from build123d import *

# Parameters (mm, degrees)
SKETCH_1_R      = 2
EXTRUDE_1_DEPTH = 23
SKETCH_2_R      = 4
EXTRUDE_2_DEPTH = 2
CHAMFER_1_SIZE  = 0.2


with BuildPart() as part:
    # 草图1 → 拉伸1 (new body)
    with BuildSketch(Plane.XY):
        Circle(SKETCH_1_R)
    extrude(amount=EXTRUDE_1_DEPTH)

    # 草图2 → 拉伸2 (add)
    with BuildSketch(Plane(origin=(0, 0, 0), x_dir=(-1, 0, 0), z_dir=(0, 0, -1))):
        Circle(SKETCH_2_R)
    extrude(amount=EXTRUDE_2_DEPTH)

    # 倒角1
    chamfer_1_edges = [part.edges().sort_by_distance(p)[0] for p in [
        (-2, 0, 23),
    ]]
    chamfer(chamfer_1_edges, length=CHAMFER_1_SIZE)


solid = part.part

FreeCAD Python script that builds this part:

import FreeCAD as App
import Part
import Sketcher

V = App.Vector


def edges_at(feature, points):
    """Names of the edges that pass closest to the given points."""
    edges = feature.Shape.Edges
    near = lambda p: min(range(len(edges)), key=lambda i: edges[i].distToShape(Part.Vertex(*p))[0])
    return sorted({f"Edge{near(p) + 1}" for p in points})

doc = App.newDocument("Part")
body = doc.addObject("PartDesign::Body", "Body")

sketch1 = body.newObject("Sketcher::SketchObject", "Sketch")
sketch1.AttachmentSupport = (doc.getObject("XY_Plane"), [""])
sketch1.MapMode = "FlatFace"
sketch1.addGeometry(Part.Circle(V(0, 0, 0), V(0, 0, 1), 2), False)
sketch1.addConstraint([
    Sketcher.Constraint("Coincident", 0, 3, -1, 1),
    Sketcher.Constraint("Diameter", 0, 4.0),
])
pad1 = body.newObject("PartDesign::Pad", "Pad")
pad1.Profile = sketch1
pad1.Length = 23

sketch2 = body.newObject("Sketcher::SketchObject", "Sketch001")
sketch2.AttachmentSupport = (doc.getObject("XY_Plane"), [""])
sketch2.MapMode = "FlatFace"
sketch2.addGeometry(Part.Circle(V(0, 0, 0), V(0, 0, 1), 4), False)
sketch2.addConstraint([
    Sketcher.Constraint("Coincident", 0, 3, -1, 1),
    Sketcher.Constraint("Diameter", 0, 8.0),
])
pad2 = body.newObject("PartDesign::Pad", "Pad001")
pad2.Profile = sketch2
pad2.Length = 2
pad2.Reversed = True
doc.recompute()

chamfer = body.newObject("PartDesign::Chamfer", "Chamfer")
chamfer.Base = (pad2, edges_at(pad2, [(-2, 0, 23)]))
chamfer.Size = 0.2

doc.recompute()
